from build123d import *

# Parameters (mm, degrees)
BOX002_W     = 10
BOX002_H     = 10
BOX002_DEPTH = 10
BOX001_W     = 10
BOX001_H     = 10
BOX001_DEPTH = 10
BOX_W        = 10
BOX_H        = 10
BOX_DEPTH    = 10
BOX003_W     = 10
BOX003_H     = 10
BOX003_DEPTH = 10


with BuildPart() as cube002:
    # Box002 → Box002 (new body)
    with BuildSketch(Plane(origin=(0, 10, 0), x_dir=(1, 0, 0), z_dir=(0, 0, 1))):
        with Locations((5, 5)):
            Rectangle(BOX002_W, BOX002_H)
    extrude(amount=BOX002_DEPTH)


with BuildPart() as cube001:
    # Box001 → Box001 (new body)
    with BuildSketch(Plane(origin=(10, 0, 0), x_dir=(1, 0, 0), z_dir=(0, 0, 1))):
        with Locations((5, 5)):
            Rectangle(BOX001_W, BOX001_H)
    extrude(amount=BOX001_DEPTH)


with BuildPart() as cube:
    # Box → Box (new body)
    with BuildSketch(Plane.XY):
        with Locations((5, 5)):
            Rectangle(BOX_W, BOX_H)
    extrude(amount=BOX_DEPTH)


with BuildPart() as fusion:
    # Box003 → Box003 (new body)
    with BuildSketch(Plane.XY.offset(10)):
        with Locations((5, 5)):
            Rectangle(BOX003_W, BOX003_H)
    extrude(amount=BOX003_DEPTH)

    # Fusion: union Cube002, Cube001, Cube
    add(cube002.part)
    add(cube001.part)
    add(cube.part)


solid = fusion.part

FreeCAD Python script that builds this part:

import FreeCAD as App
import Part
import Sketcher

doc = App.newDocument("Part")
body = doc.addObject("PartDesign::Body", "Body")

sketch1 = body.newObject("Sketcher::SketchObject", "Sketch")
sketch1.AttachmentSupport = (doc.getObject("XY_Plane"), [""])
sketch1.MapMode = "FlatFace"
sketch1.addGeometry([
    Part.LineSegment(App.Vector(0, 20, 0), App.Vector(0, 10, 0)),
    Part.LineSegment(App.Vector(0, 10, 0), App.Vector(10, 10, 0)),
    Part.LineSegment(App.Vector(10, 10, 0), App.Vector(10, 20, 0)),
    Part.LineSegment(App.Vector(10, 20, 0), App.Vector(0, 20, 0)),
], False)
sketch1.addConstraint([
    Sketcher.Constraint("Coincident", 0, 2, 1, 1),
    Sketcher.Constraint("Coincident", 1, 2, 2, 1),
    Sketcher.Constraint("Coincident", 2, 2, 3, 1),
    Sketcher.Constraint("Coincident", 3, 2, 0, 1),
    Sketcher.Constraint("Vertical", 0),
    Sketcher.Constraint("Horizontal", 1),
    Sketcher.Constraint("Vertical", 2),
    Sketcher.Constraint("Horizontal", 3),
    Sketcher.Constraint("PointOnObject", 0, 2, -2),
    Sketcher.Constraint("Equal", 3, 0),
    Sketcher.Constraint("DistanceX", 1, 1, 1, 2, 10.0),
    Sketcher.Constraint("DistanceY", -1, 1, 0, 2, 10.0),
])
pad1 = body.newObject("PartDesign::Pad", "Pad")
pad1.Profile = sketch1
pad1.Length = 10
body2 = doc.addObject("PartDesign::Body", "Body001")

sketch2 = body2.newObject("Sketcher::SketchObject", "Sketch001")
sketch2.AttachmentSupport = (doc.getObject("XY_Plane001"), [""])
sketch2.MapMode = "FlatFace"
sketch2.addGeometry([
    Part.LineSegment(App.Vector(10, 10, 0), App.Vector(10, 0, 0)),
    Part.LineSegment(App.Vector(10, 0, 0), App.Vector(20, 0, 0)),
    Part.LineSegment(App.Vector(20, 0, 0), App.Vector(20, 10, 0)),
    Part.LineSegment(App.Vector(20, 10, 0), App.Vector(10, 10, 0)),
], False)
sketch2.addConstraint([
    Sketcher.Constraint("Coincident", 0, 2, 1, 1),
    Sketcher.Constraint("Coincident", 1, 2, 2, 1),
    Sketcher.Constraint("Coincident", 2, 2, 3, 1),
    Sketcher.Constraint("Coincident", 3, 2, 0, 1),
    Sketcher.Constraint("Vertical", 0),
    Sketcher.Constraint("Horizontal", 1),
    Sketcher.Constraint("Vertical", 2),
    Sketcher.Constraint("Horizontal", 3),
    Sketcher.Constraint("PointOnObject", 0, 2, -1),
    Sketcher.Constraint("Equal", 3, 0),
    Sketcher.Constraint("DistanceX", 1, 1, 1, 2, 10.0),
    Sketcher.Constraint("DistanceX", -1, 1, 0, 2, 10.0),
])
pad2 = body2.newObject("PartDesign::Pad", "Pad001")
pad2.Profile = sketch2
pad2.Length = 10
body3 = doc.addObject("PartDesign::Body", "Body002")

sketch3 = body3.newObject("Sketcher::SketchObject", "Sketch002")
sketch3.AttachmentSupport = (doc.getObject("XY_Plane002"), [""])
sketch3.MapMode = "FlatFace"
sketch3.addGeometry([
    Part.LineSegment(App.Vector(0, 10, 0), App.Vector(0, 0, 0)),
    Part.LineSegment(App.Vector(0, 0, 0), App.Vector(10, 0, 0)),
    Part.LineSegment(App.Vector(10, 0, 0), App.Vector(10, 10, 0)),
    Part.LineSegment(App.Vector(10, 10, 0), App.Vector(0, 10, 0)),
], False)
sketch3.addConstraint([
    Sketcher.Constraint("Coincident", 0, 2, 1, 1),
    Sketcher.Constraint("Coincident", 1, 2, 2, 1),
    Sketcher.Constraint("Coincident", 2, 2, 3, 1),
    Sketcher.Constraint("Coincident", 3, 2, 0, 1),
    Sketcher.Constraint("Vertical", 0),
    Sketcher.Constraint("Horizontal", 1),
    Sketcher.Constraint("Vertical", 2),
    Sketcher.Constraint("Horizontal", 3),
    Sketcher.Constraint("Coincident", 0, 2, -1, 1),
    Sketcher.Constraint("Equal", 3, 0),
    Sketcher.Constraint("DistanceX", 1, 1, 1, 2, 10.0),
])
pad3 = body3.newObject("PartDesign::Pad", "Pad002")
pad3.Profile = sketch3
pad3.Length = 10
body4 = doc.addObject("PartDesign::Body", "Body003")
body4.AllowCompound = True

sketch4 = body4.newObject("Sketcher::SketchObject", "Sketch003")
sketch4.AttachmentSupport = (doc.getObject("XY_Plane003"), [""])
sketch4.MapMode = "FlatFace"
sketch4.AttachmentOffset = App.Placement(App.Vector(0, 0, 10), App.Rotation())
sketch4.addGeometry([
    Part.LineSegment(App.Vector(0, 10, 0), App.Vector(0, 0, 0)),
    Part.LineSegment(App.Vector(0, 0, 0), App.Vector(10, 0, 0)),
    Part.LineSegment(App.Vector(10, 0, 0), App.Vector(10, 10, 0)),
    Part.LineSegment(App.Vector(10, 10, 0), App.Vector(0, 10, 0)),
], False)
sketch4.addConstraint([
    Sketcher.Constraint("Coincident", 0, 2, 1, 1),
    Sketcher.Constraint("Coincident", 1, 2, 2, 1),
    Sketcher.Constraint("Coincident", 2, 2, 3, 1),
    Sketcher.Constraint("Coincident", 3, 2, 0, 1),
    Sketcher.Constraint("Vertical", 0),
    Sketcher.Constraint("Horizontal", 1),
    Sketcher.Constraint("Vertical", 2),
    Sketcher.Constraint("Horizontal", 3),
    Sketcher.Constraint("Coincident", 0, 2, -1, 1),
    Sketcher.Constraint("Equal", 3, 0),
    Sketcher.Constraint("DistanceX", 1, 1, 1, 2, 10.0),
])
pad4 = body4.newObject("PartDesign::Pad", "Pad003")
pad4.Profile = sketch4
pad4.Length = 10
doc.recompute()

boolean = body4.newObject("PartDesign::Boolean", "Boolean")
boolean.Type = "Fuse"
boolean.addObjects([body])
doc.recompute()

boolean2 = body4.newObject("PartDesign::Boolean", "Boolean001")
boolean2.Type = "Fuse"
boolean2.addObjects([body2])
doc.recompute()

boolean3 = body4.newObject("PartDesign::Boolean", "Boolean002")
boolean3.Type = "Fuse"
boolean3.addObjects([body3])

doc.recompute()
